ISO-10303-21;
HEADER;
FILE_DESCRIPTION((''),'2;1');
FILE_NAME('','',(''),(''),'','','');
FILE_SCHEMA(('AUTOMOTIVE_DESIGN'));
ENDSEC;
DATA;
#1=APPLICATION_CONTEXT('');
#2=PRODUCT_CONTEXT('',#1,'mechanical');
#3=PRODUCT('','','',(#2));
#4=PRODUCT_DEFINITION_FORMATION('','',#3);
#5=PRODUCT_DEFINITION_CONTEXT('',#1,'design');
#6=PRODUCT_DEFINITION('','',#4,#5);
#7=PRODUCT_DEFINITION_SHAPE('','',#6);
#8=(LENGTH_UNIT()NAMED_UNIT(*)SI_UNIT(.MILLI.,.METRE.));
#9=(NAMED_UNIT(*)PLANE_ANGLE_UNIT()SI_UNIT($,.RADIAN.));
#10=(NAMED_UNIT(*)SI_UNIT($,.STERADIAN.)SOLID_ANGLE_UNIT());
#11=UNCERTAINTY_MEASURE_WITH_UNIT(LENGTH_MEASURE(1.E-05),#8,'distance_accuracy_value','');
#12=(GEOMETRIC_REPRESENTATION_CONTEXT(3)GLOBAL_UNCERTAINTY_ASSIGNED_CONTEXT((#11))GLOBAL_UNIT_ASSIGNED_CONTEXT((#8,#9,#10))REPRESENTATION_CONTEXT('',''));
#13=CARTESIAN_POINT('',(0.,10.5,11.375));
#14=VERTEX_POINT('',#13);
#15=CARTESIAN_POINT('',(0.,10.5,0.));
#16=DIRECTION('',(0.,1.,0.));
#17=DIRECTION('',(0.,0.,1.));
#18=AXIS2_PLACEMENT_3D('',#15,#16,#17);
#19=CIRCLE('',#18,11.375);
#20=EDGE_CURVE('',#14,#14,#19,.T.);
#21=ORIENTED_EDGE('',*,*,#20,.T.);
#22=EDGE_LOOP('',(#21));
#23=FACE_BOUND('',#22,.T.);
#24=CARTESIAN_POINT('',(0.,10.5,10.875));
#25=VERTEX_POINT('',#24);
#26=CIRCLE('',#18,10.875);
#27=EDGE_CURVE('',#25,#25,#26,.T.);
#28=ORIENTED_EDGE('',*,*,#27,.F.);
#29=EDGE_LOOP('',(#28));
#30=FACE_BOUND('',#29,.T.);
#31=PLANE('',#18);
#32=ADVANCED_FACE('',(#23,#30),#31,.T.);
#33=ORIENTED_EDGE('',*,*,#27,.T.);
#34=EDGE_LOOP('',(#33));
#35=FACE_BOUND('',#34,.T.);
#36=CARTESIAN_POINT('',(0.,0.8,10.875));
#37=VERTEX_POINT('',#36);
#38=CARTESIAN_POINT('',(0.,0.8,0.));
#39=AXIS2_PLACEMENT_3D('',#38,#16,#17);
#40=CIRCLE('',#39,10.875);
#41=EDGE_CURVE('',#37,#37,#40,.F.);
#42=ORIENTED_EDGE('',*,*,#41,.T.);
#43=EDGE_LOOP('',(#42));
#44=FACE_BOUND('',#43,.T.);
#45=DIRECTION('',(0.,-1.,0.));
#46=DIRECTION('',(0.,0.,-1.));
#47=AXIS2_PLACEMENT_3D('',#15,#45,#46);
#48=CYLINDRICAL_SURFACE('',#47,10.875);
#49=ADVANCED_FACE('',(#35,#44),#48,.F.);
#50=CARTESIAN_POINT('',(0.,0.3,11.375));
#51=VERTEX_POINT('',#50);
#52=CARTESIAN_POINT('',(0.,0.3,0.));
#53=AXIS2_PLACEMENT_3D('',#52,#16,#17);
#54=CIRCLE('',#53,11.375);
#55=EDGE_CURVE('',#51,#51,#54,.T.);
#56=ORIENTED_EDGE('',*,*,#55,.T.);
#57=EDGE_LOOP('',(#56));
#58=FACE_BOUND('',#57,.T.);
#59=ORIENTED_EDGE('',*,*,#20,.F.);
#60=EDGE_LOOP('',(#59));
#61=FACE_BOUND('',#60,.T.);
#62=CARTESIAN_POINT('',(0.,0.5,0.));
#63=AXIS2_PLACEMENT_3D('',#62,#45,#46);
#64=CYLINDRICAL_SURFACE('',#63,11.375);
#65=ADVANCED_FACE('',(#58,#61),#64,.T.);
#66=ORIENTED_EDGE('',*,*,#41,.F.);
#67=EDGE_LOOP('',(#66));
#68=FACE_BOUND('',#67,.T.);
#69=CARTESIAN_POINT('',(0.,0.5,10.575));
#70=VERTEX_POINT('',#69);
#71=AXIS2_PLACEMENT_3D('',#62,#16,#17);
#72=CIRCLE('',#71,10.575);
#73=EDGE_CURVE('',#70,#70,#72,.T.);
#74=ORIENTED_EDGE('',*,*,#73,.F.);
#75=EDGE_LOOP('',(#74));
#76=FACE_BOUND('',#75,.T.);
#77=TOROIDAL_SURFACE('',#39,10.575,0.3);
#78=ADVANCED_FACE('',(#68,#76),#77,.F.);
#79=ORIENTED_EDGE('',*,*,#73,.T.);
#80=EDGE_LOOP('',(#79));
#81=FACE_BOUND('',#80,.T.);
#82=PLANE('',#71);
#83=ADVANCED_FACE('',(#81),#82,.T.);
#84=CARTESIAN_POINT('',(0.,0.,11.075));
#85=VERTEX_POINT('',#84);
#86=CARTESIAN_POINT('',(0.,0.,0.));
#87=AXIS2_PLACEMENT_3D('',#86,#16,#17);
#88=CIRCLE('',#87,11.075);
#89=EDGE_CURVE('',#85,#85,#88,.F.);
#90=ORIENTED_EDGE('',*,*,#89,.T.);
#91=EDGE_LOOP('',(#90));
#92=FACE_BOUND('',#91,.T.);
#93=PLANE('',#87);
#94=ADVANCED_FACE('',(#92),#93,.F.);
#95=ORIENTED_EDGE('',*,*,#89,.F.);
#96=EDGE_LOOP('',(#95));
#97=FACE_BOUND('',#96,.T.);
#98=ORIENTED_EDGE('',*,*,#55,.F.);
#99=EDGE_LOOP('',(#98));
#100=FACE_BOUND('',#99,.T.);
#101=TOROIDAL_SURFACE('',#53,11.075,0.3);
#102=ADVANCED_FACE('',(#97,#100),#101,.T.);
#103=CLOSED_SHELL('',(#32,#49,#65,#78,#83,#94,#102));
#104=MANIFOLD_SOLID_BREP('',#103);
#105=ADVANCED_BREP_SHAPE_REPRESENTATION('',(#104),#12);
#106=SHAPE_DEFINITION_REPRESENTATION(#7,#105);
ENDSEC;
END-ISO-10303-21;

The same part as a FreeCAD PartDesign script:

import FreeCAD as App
import Part
import Sketcher

V = App.Vector


def edges_at(feature, points):
    """Names of the edges that pass closest to the given points."""
    edges = feature.Shape.Edges
    near = lambda p: min(range(len(edges)), key=lambda i: edges[i].distToShape(Part.Vertex(*p))[0])
    return sorted({f"Edge{near(p) + 1}" for p in points})

doc = App.newDocument("Part")
body = doc.addObject("PartDesign::Body", "Body")

# Sketch on XZ plane
sketch1 = doc.addObject("Sketcher::SketchObject", "Sketch")
body.addObject(sketch1)
sketch1.AttachmentSupport = (doc.XZ_Plane, [""])
sketch1.MapMode = "FlatFace"
sketch1.addGeometry(Part.Circle(V(0, 0, 0), V(0, 0, 1), 11.375), False)
sketch1.addConstraint([
    Sketcher.Constraint("Coincident", 0, 3, -1, 1),
    Sketcher.Constraint("Diameter", 0, 22.75),
])
pad1 = doc.addObject("PartDesign::Pad", "Pad")
body.addObject(pad1)
pad1.Profile = sketch1
pad1.Length = 0.5
pad1.Reversed = True

# Sketch on XZ plane
sketch2 = doc.addObject("Sketcher::SketchObject", "Sketch001")
body.addObject(sketch2)
sketch2.AttachmentSupport = (doc.XZ_Plane, [""])
sketch2.MapMode = "FlatFace"
sketch2.AttachmentOffset = App.Placement(V(0, 0, -0.5), App.Rotation())
sketch2.addGeometry([
    Part.Circle(V(0, 0, 0), V(0, 0, 1), 11.375),
    Part.Circle(V(0, 0, 0), V(0, 0, 1), 10.875),
], False)
sketch2.addConstraint([
    Sketcher.Constraint("Coincident", 0, 3, -1, 1),
    Sketcher.Constraint("Coincident", 1, 3, -1, 1),
    Sketcher.Constraint("Diameter", 0, 22.75),
    Sketcher.Constraint("Diameter", 1, 21.75),
])
pad2 = doc.addObject("PartDesign::Pad", "Pad001")
body.addObject(pad2)
pad2.Profile = sketch2
pad2.Length = 10
pad2.Reversed = True
doc.recompute()

fillet = doc.addObject("PartDesign::Fillet", "Fillet")
body.addObject(fillet)
fillet.Base = (pad2, edges_at(pad2, [(0, 0.5, -10.875)]))
fillet.Radius = 0.3
doc.recompute()

fillet2 = doc.addObject("PartDesign::Fillet", "Fillet001")
body.addObject(fillet2)
fillet2.Base = (fillet, edges_at(fillet, [(0, 0, -11.375)]))
fillet2.Radius = 0.3

doc.recompute()
